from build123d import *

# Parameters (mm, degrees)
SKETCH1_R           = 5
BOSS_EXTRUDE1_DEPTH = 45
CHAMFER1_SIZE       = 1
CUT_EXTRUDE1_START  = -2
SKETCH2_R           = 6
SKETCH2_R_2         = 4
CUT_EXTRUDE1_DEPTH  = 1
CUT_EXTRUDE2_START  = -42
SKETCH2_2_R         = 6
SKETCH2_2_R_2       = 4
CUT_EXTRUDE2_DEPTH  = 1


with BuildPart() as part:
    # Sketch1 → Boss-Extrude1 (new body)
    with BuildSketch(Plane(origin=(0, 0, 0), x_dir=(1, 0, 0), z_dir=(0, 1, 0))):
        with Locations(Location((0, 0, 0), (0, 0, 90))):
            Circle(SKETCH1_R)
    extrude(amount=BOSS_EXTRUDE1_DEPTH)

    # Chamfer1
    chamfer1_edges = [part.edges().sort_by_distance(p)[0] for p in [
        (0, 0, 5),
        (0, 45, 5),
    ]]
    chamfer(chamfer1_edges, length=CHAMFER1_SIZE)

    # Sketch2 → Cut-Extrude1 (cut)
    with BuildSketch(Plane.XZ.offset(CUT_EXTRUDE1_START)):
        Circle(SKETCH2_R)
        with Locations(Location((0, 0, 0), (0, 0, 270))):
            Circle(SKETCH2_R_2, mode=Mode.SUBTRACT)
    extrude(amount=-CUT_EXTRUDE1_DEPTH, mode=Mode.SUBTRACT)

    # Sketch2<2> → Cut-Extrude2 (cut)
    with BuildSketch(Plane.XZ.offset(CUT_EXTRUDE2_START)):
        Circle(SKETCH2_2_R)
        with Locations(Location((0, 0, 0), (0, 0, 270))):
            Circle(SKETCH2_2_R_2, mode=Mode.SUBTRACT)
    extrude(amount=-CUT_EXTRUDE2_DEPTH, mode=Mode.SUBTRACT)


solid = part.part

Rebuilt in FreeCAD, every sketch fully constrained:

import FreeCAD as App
import Part
import Sketcher
from FreeCAD import Vector
Q = App.Units.Quantity


def edges_at(feature, points):
    """Names of the edges that pass closest to the given points."""
    edges = feature.Shape.Edges
    near = lambda p: min(range(len(edges)), key=lambda i: edges[i].distToShape(Part.Vertex(*p))[0])
    return sorted({f"Edge{near(p) + 1}" for p in points})

doc = App.newDocument("Part")
params = doc.addObject("Spreadsheet::Sheet", "Params")
for row, (alias, value) in enumerate([
    ("sketch1_diameter", "10 mm"),
    ("pad1_length", "45 mm"),
    ("chamfer_size", "1 mm"),
    ("sketch2_diameter", "12 mm"),
    ("sketch2_diameter2", "8 mm"),
    ("pocket1_length", "1 mm"),
    ("sketch3_diameter", "12 mm"),
    ("sketch3_diameter2", "8 mm"),
    ("pocket2_length", "1 mm"),
], start=1):
    params.set(f"A{row}", alias)
    params.set(f"B{row}", "=" + value)
    params.setAlias(f"B{row}", alias)

body = doc.addObject("PartDesign::Body", "Body")

# Sketch on XZ plane
sketch1 = body.newObject("Sketcher::SketchObject", "Sketch")
sketch1.AttachmentSupport = (doc.getObject("XZ_Plane"), [""])
sketch1.MapMode = "FlatFace"
sketch1.addGeometry(Part.Circle(Vector(0, 0, 0), Vector(0, 0, 1), 5), False)
sketch1.addConstraint(Sketcher.Constraint("Coincident", 0, 3, -1, 1))
sketch1.addConstraint(Sketcher.Constraint("Diameter", 0, Q("10 mm")))
sketch1.setExpression("Constraints[1]", "Params.sketch1_diameter")
pad1 = body.newObject("PartDesign::Pad", "Pad")
pad1.Profile = sketch1
pad1.setExpression("Length", "Params.pad1_length")
pad1.Reversed = True
doc.recompute()

chamfer = body.newObject("PartDesign::Chamfer", "Chamfer")
chamfer.Base = (pad1, edges_at(pad1, [(0, 0, 5), (0, 45, 5)]))
chamfer.setExpression("Size", "Params.chamfer_size")

# Sketch on XZ plane
sketch2 = body.newObject("Sketcher::SketchObject", "Sketch001")
sketch2.AttachmentSupport = (doc.getObject("XZ_Plane"), [""])
sketch2.MapMode = "FlatFace"
sketch2.AttachmentOffset = App.Placement(Vector(0, 0, -2), App.Rotation())
sketch2.addGeometry(Part.Circle(Vector(0, 0, 0), Vector(0, 0, 1), 6), False)
sketch2.addGeometry(Part.Circle(Vector(0, 0, 0), Vector(0, 0, 1), 4), False)
sketch2.addConstraint(Sketcher.Constraint("Coincident", 0, 3, -1, 1))
sketch2.addConstraint(Sketcher.Constraint("Coincident", 1, 3, -1, 1))
sketch2.addConstraint(Sketcher.Constraint("Diameter", 0, Q("12 mm")))
sketch2.addConstraint(Sketcher.Constraint("Diameter", 1, Q("8 mm")))
sketch2.setExpression("Constraints[2]", "Params.sketch2_diameter")
sketch2.setExpression("Constraints[3]", "Params.sketch2_diameter2")
pocket1 = body.newObject("PartDesign::Pocket", "Pocket")
pocket1.Profile = sketch2
pocket1.setExpression("Length", "Params.pocket1_length")

# Sketch on XZ plane
sketch3 = body.newObject("Sketcher::SketchObject", "Sketch002")
sketch3.AttachmentSupport = (doc.getObject("XZ_Plane"), [""])
sketch3.MapMode = "FlatFace"
sketch3.AttachmentOffset = App.Placement(Vector(0, 0, -42), App.Rotation())
sketch3.addGeometry(Part.Circle(Vector(0, 0, 0), Vector(0, 0, 1), 6), False)
sketch3.addGeometry(Part.Circle(Vector(0, 0, 0), Vector(0, 0, 1), 4), False)
sketch3.addConstraint(Sketcher.Constraint("Coincident", 0, 3, -1, 1))
sketch3.addConstraint(Sketcher.Constraint("Coincident", 1, 3, -1, 1))
sketch3.addConstraint(Sketcher.Constraint("Diameter", 0, Q("12 mm")))
sketch3.addConstraint(Sketcher.Constraint("Diameter", 1, Q("8 mm")))
sketch3.setExpression("Constraints[2]", "Params.sketch3_diameter")
sketch3.setExpression("Constraints[3]", "Params.sketch3_diameter2")
pocket2 = body.newObject("PartDesign::Pocket", "Pocket001")
pocket2.Profile = sketch3
pocket2.setExpression("Length", "Params.pocket2_length")

doc.recompute()
